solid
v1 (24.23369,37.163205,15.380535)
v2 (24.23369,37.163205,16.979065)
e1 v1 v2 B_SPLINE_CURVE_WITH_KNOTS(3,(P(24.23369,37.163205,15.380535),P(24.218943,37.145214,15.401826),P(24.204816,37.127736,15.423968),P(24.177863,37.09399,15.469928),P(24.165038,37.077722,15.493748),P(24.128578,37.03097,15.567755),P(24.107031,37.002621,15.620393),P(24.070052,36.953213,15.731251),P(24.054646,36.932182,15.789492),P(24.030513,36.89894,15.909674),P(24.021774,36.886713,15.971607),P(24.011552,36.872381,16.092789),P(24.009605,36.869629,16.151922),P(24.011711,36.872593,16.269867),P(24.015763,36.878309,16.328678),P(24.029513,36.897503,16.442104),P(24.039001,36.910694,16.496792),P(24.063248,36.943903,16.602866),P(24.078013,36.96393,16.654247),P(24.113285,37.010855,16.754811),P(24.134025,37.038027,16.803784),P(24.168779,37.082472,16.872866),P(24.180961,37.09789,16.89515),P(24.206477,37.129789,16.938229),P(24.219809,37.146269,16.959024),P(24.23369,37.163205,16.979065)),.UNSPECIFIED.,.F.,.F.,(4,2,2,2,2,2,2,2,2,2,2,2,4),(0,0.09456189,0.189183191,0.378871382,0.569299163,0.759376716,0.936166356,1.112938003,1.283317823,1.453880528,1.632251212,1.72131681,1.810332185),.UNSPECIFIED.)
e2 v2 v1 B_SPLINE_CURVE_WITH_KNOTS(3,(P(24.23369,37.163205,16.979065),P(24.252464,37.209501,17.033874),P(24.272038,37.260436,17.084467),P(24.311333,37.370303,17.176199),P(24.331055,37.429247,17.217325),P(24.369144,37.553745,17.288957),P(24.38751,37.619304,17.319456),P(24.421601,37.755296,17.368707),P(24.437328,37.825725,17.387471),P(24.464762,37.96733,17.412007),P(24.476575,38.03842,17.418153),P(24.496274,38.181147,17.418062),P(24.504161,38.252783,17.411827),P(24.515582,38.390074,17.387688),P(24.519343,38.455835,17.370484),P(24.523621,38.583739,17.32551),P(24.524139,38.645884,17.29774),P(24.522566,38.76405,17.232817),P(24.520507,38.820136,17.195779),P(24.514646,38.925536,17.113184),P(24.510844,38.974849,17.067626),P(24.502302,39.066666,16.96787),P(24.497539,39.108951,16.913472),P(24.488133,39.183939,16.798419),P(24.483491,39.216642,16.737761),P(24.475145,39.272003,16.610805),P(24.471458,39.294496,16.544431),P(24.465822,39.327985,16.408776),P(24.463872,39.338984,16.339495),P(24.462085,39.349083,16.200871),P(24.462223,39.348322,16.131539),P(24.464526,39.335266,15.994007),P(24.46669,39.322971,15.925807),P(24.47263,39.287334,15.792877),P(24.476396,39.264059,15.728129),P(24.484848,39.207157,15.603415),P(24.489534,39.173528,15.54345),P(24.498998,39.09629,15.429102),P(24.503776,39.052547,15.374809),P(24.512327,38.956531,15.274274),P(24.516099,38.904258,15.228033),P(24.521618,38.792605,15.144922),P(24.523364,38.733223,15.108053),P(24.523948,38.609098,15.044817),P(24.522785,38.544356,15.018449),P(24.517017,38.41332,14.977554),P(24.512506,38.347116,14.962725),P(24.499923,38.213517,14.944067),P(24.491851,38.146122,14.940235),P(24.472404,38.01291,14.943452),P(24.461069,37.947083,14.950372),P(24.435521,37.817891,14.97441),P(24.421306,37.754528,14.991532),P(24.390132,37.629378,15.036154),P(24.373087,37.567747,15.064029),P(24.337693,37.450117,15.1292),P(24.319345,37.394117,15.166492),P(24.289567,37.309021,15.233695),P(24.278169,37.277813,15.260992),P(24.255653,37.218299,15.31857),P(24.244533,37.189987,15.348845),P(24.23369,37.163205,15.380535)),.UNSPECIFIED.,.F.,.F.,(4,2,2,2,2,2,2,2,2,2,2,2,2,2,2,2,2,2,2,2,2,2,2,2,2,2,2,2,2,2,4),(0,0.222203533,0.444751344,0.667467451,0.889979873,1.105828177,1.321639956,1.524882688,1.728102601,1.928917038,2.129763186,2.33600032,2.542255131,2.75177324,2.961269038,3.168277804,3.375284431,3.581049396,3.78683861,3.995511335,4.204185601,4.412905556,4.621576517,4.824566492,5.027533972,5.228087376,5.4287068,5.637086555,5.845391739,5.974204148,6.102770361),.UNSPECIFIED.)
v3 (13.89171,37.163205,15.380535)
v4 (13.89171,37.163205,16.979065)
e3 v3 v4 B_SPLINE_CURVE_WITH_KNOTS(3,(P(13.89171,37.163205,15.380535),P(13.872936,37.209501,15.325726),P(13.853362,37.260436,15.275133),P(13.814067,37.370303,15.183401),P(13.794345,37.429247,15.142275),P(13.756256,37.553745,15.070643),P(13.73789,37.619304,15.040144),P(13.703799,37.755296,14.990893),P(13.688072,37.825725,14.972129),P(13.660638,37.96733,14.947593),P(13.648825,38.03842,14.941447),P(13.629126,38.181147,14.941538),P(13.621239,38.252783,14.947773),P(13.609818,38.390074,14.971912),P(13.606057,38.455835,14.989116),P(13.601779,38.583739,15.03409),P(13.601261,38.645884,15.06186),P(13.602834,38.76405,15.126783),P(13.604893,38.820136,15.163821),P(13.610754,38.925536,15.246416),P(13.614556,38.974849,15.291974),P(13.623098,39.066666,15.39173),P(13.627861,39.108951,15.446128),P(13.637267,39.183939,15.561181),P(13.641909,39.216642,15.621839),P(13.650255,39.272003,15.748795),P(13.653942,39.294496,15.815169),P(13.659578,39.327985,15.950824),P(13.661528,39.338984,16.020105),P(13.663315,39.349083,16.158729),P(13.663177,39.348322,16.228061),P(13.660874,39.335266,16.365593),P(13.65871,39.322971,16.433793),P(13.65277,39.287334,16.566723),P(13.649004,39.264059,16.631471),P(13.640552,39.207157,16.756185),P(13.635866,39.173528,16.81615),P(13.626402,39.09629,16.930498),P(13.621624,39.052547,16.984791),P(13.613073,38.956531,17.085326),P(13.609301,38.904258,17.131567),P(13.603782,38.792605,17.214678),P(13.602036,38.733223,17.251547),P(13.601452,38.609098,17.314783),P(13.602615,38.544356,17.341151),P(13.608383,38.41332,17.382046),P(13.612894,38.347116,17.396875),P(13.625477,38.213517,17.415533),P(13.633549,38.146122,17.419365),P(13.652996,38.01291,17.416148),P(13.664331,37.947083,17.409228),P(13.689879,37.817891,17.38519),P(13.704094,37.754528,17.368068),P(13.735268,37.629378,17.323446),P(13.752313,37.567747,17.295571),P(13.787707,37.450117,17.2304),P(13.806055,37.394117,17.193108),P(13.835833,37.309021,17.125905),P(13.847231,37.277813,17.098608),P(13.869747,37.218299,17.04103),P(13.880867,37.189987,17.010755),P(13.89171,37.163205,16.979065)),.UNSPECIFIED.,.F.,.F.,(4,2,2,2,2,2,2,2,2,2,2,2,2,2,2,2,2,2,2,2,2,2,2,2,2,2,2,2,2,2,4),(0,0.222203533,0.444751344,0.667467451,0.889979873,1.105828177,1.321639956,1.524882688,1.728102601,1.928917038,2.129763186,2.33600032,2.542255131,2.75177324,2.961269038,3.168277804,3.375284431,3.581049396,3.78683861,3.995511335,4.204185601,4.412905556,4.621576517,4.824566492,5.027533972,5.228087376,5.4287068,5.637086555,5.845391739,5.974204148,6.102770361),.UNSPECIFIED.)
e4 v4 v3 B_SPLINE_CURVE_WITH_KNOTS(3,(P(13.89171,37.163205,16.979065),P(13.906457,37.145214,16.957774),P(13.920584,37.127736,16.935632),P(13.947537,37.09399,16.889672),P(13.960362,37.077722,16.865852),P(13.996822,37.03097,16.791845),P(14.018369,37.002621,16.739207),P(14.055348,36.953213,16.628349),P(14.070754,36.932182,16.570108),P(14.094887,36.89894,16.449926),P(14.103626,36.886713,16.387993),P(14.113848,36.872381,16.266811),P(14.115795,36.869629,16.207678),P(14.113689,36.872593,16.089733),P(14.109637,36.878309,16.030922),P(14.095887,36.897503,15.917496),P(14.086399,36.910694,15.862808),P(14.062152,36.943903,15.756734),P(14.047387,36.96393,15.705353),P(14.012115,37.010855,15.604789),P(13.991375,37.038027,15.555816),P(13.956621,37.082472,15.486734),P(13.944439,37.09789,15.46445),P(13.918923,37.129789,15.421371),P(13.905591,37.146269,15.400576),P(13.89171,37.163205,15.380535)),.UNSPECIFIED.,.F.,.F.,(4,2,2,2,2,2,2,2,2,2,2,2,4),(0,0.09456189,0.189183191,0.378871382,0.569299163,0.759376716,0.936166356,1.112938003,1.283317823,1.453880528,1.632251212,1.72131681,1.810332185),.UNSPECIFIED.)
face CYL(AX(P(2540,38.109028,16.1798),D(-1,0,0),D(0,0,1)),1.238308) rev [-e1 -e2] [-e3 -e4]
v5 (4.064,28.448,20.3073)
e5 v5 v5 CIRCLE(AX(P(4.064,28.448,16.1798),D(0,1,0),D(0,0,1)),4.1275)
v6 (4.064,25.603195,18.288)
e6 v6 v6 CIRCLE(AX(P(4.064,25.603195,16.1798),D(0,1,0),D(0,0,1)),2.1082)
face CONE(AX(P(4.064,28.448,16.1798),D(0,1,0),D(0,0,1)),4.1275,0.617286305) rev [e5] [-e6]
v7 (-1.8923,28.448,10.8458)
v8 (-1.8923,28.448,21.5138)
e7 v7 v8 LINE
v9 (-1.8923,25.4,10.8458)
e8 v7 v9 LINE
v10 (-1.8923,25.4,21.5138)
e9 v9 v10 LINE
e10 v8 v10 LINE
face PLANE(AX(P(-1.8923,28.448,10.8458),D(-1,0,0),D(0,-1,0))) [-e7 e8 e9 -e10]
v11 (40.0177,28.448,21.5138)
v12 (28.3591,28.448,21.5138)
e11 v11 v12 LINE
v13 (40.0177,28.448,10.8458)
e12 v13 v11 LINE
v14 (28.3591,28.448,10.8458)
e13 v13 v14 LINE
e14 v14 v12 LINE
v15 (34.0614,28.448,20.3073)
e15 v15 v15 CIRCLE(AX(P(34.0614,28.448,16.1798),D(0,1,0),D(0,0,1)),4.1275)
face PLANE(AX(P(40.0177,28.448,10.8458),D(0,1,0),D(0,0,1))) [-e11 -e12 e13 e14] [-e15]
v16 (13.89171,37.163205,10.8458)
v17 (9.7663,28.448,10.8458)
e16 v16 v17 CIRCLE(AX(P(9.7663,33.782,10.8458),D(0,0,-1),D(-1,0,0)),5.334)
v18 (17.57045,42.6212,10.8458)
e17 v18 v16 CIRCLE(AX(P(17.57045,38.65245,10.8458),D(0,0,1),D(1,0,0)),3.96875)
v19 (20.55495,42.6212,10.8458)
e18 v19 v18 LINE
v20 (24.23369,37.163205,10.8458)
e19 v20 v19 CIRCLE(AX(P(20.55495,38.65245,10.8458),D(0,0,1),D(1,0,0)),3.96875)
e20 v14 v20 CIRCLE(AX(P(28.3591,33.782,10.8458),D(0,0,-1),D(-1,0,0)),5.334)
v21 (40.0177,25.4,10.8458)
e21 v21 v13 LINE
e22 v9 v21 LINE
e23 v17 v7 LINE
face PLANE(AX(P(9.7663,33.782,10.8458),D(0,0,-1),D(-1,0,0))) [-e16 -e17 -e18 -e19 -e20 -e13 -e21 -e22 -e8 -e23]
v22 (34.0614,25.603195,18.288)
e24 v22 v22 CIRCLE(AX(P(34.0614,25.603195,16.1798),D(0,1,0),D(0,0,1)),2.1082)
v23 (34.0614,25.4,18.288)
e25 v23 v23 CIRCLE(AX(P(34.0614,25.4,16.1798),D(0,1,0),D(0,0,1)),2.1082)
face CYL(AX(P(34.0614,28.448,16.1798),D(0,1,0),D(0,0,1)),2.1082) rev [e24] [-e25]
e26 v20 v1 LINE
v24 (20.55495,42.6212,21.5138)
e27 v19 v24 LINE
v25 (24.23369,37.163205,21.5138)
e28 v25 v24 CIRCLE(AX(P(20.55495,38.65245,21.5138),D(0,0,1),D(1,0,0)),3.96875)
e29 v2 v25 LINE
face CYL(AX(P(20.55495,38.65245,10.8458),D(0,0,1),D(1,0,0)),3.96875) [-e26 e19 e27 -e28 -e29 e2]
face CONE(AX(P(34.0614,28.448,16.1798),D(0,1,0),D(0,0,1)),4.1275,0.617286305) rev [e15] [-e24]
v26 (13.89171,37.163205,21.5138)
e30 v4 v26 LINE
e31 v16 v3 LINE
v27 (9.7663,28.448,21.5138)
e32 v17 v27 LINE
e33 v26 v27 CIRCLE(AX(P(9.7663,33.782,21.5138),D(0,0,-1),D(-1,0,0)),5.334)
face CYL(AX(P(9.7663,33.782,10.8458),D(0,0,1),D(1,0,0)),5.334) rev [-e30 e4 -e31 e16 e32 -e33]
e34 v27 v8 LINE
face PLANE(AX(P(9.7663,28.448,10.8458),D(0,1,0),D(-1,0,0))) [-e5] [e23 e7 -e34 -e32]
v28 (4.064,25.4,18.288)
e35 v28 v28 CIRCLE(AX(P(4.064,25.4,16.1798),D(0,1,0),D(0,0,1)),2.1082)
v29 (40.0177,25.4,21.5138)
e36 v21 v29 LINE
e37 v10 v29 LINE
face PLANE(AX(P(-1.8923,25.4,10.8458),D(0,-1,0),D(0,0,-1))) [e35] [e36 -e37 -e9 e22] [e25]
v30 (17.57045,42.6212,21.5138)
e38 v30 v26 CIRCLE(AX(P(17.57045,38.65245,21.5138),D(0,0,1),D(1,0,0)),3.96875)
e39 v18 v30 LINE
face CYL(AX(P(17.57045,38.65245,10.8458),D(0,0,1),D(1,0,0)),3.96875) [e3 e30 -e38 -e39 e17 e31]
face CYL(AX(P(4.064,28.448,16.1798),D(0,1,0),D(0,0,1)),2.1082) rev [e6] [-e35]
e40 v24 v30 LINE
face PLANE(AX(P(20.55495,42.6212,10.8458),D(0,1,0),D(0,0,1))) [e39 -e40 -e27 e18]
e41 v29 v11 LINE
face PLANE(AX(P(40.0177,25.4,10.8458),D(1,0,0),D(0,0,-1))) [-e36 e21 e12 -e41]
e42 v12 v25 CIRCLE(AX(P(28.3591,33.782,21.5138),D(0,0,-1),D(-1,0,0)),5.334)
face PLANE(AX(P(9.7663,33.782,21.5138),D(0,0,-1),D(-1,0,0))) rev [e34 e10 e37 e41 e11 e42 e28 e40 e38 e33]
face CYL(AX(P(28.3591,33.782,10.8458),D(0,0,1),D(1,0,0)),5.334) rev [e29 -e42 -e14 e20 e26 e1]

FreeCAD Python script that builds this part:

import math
import FreeCAD as App
import Part
import Sketcher
Q = App.Units.Quantity


def add_polygon(sketch, points):
    """Adds a closed chain of lines whose ends are joined by coincident constraints."""
    first, n = sketch.GeometryCount, len(points)
    for a, b in zip(points, points[1:] + points[:1]):
        sketch.addGeometry(Part.LineSegment(App.Vector(*a, 0), App.Vector(*b, 0)), False)
    for i in range(n):
        sketch.addConstraint(Sketcher.Constraint("Coincident", first + i, 2, first + (i + 1) % n, 1))

doc = App.newDocument("Part")
body = doc.addObject("PartDesign::Body", "Body")

sketch1 = body.newObject("Sketcher::SketchObject", "Sketch")
sketch1.AttachmentSupport = (doc.getObject("XY_Plane"), [""])
sketch1.MapMode = "FlatFace"
sketch1.AttachmentOffset = App.Placement(App.Vector(0, 0, 0.847 * 25.4), App.Rotation())
sketch1.addGeometry([
    Part.LineSegment(App.Vector(9.7663, 28.448, 0), App.Vector(-1.8923, 28.448, 0)),
    Part.LineSegment(App.Vector(-1.8923, 28.448, 0), App.Vector(-1.8923, 25.4, 0)),
    Part.LineSegment(App.Vector(-1.8923, 25.4, 0), App.Vector(40.0177, 25.4, 0)),
    Part.LineSegment(App.Vector(40.0177, 25.4, 0), App.Vector(40.0177, 28.448, 0)),
    Part.LineSegment(App.Vector(40.0177, 28.448, 0), App.Vector(28.3591, 28.448, 0)),
    Part.ArcOfCircle(Part.Circle(App.Vector(28.3591, 33.782, 0), App.Vector(0, 0, 1), 5.334), math.radians(140.661802), math.radians(270)),
    Part.ArcOfCircle(Part.Circle(App.Vector(20.55495, 38.65245, 0), App.Vector(0, 0, 1), 3.96875), math.radians(-22.039328), math.radians(90)),
    Part.LineSegment(App.Vector(20.55495, 42.6212, 0), App.Vector(17.57045, 42.6212, 0)),
    Part.ArcOfCircle(Part.Circle(App.Vector(17.57045, 38.65245, 0), App.Vector(0, 0, 1), 3.96875), math.radians(90), math.radians(202.039328)),
    Part.ArcOfCircle(Part.Circle(App.Vector(9.7663, 33.782, 0), App.Vector(0, 0, 1), 5.334), math.radians(-90), math.radians(39.338198)),
], False)
sketch1.addConstraint([
    Sketcher.Constraint("Coincident", 0, 2, 1, 1),
    Sketcher.Constraint("Coincident", 1, 2, 2, 1),
    Sketcher.Constraint("Coincident", 2, 2, 3, 1),
    Sketcher.Constraint("Coincident", 3, 2, 4, 1),
    Sketcher.Constraint("Tangent", 4, 2, 5, 2),
    Sketcher.Constraint("Coincident", 5, 1, 6, 1),
    Sketcher.Constraint("Tangent", 6, 2, 7, 1),
    Sketcher.Constraint("Tangent", 7, 2, 8, 1),
    Sketcher.Constraint("Coincident", 8, 2, 9, 2),
    Sketcher.Constraint("Tangent", 9, 1, 0, 1),
    Sketcher.Constraint("Horizontal", 0),
    Sketcher.Constraint("Vertical", 1),
    Sketcher.Constraint("Horizontal", 2),
    Sketcher.Constraint("Vertical", 3),
    Sketcher.Constraint("Horizontal", 4),
    Sketcher.Constraint("Horizontal", 7),
    Sketcher.Constraint("Equal", 6, 8),
    Sketcher.Constraint("Equal", 5, 9),
    Sketcher.Constraint("Horizontal", 5, 3, 9, 3),
    Sketcher.Constraint("Horizontal", 5, 1, 8, 2),
    Sketcher.Constraint("Equal", 0, 4),
    Sketcher.Constraint("Radius", 5, Q("0.21 in")),
    Sketcher.Constraint("DistanceY", -1, 1, 1, 2, Q("1 in")),
    Sketcher.Constraint("Radius", 6, Q("0.15625 in")),
    Sketcher.Constraint("DistanceX", 2, 1, 2, 2, Q("1.65 in")),
    Sketcher.Constraint("DistanceY", 1, 2, 1, 1, Q("0.12 in")),
    Sketcher.Constraint("DistanceX", 0, 2, 0, 1, Q("0.459 in")),
    Sketcher.Constraint("DistanceX", 7, 2, 7, 1, Q("0.1175 in")),
    Sketcher.Constraint("DistanceY", -1, 1, 6, 2, Q("1.678 in")),
    Sketcher.Constraint("DistanceX", -1, 1, 5, 3, Q("1.1165 in")),
])
pad1 = body.newObject("PartDesign::Pad", "Pad")
pad1.Profile = sketch1
pad1.Length = Q("0.42 in")
pad1.Reversed = True

sketch2 = body.newObject("Sketcher::SketchObject", "Sketch001")
sketch2.AttachmentSupport = (doc.getObject("YZ_Plane"), [""])
sketch2.MapMode = "FlatFace"
sketch2.AttachmentOffset = App.Placement(App.Vector(0, 0, 1.341 * 25.4), App.Rotation())
add_polygon(sketch2, [(25.4, 16.1798), (28.448, 16.1798), (28.448, 20.3073), (25.603195, 18.288), (25.4, 18.288)])
sketch2.addGeometry(Part.LineSegment(App.Vector(28.448, 16.1798, 0), App.Vector(25.4, 16.1798, 0)), True)
sketch2.addConstraint([
    Sketcher.Constraint("Horizontal", 0),
    Sketcher.Constraint("Vertical", 1),
    Sketcher.Constraint("Horizontal", 3),
    Sketcher.Constraint("Vertical", 4),
    Sketcher.Constraint("Horizontal", 5),
    Sketcher.Constraint("Coincident", 5, 1, 0, 2),
    Sketcher.Constraint("Vertical", 3, 2, 5, 2),
    Sketcher.Constraint("DistanceX", -1, 1, 3, 2, Q("1 in")),
    Sketcher.Constraint("DistanceX", 0, 1, 0, 2, Q("0.12 in")),
    Sketcher.Constraint("DistanceY", 4, 2, 4, 1, Q("0.083 in")),
    Sketcher.Constraint("DistanceY", -1, 1, 2, 2, Q("0.72 in")),
    Sketcher.Constraint("DistanceY", 1, 1, 1, 2, Q("0.1625 in")),
    Sketcher.Constraint("DistanceX", 3, 2, 3, 1, Q("0.203195 mm")),
])
groove = body.newObject("PartDesign::Groove", "Groove")
groove.Profile = sketch2
groove.ReferenceAxis = (sketch2, ["Axis0"])
groove.Angle = 360
doc.recompute()

linearpattern = body.newObject("PartDesign::LinearPattern", "LinearPattern")
linearpattern.Originals = [groove]
linearpattern.Direction = (doc.getObject("X_Axis"), [""])
linearpattern.Mode = "offset"
linearpattern.Offset = Q("1.181 in")
linearpattern.Occurrences = 2
linearpattern.Reversed = True
body.Tip = linearpattern

sketch3 = body.newObject("Sketcher::SketchObject", "Sketch002")
sketch3.AttachmentSupport = (doc.getObject("YZ_Plane"), [""])
sketch3.MapMode = "FlatFace"
sketch3.addGeometry(Part.Circle(App.Vector(38.109028, 16.1798, 0), App.Vector(0, 0, 1), 1.238308), False)
sketch3.addConstraint([
    Sketcher.Constraint("DistanceY", -1, 1, 0, 3, Q("0.637 in")),
    Sketcher.Constraint("Diameter", 0, Q("2.476616 mm")),
    Sketcher.Constraint("DistanceX", -1, 1, 0, 3, Q("38.109028 mm")),
])
pocket1 = body.newObject("PartDesign::Pocket", "Pocket")
pocket1.Profile = sketch3
pocket1.Length = Q("100 in")
pocket1.Reversed = True

doc.recompute()
